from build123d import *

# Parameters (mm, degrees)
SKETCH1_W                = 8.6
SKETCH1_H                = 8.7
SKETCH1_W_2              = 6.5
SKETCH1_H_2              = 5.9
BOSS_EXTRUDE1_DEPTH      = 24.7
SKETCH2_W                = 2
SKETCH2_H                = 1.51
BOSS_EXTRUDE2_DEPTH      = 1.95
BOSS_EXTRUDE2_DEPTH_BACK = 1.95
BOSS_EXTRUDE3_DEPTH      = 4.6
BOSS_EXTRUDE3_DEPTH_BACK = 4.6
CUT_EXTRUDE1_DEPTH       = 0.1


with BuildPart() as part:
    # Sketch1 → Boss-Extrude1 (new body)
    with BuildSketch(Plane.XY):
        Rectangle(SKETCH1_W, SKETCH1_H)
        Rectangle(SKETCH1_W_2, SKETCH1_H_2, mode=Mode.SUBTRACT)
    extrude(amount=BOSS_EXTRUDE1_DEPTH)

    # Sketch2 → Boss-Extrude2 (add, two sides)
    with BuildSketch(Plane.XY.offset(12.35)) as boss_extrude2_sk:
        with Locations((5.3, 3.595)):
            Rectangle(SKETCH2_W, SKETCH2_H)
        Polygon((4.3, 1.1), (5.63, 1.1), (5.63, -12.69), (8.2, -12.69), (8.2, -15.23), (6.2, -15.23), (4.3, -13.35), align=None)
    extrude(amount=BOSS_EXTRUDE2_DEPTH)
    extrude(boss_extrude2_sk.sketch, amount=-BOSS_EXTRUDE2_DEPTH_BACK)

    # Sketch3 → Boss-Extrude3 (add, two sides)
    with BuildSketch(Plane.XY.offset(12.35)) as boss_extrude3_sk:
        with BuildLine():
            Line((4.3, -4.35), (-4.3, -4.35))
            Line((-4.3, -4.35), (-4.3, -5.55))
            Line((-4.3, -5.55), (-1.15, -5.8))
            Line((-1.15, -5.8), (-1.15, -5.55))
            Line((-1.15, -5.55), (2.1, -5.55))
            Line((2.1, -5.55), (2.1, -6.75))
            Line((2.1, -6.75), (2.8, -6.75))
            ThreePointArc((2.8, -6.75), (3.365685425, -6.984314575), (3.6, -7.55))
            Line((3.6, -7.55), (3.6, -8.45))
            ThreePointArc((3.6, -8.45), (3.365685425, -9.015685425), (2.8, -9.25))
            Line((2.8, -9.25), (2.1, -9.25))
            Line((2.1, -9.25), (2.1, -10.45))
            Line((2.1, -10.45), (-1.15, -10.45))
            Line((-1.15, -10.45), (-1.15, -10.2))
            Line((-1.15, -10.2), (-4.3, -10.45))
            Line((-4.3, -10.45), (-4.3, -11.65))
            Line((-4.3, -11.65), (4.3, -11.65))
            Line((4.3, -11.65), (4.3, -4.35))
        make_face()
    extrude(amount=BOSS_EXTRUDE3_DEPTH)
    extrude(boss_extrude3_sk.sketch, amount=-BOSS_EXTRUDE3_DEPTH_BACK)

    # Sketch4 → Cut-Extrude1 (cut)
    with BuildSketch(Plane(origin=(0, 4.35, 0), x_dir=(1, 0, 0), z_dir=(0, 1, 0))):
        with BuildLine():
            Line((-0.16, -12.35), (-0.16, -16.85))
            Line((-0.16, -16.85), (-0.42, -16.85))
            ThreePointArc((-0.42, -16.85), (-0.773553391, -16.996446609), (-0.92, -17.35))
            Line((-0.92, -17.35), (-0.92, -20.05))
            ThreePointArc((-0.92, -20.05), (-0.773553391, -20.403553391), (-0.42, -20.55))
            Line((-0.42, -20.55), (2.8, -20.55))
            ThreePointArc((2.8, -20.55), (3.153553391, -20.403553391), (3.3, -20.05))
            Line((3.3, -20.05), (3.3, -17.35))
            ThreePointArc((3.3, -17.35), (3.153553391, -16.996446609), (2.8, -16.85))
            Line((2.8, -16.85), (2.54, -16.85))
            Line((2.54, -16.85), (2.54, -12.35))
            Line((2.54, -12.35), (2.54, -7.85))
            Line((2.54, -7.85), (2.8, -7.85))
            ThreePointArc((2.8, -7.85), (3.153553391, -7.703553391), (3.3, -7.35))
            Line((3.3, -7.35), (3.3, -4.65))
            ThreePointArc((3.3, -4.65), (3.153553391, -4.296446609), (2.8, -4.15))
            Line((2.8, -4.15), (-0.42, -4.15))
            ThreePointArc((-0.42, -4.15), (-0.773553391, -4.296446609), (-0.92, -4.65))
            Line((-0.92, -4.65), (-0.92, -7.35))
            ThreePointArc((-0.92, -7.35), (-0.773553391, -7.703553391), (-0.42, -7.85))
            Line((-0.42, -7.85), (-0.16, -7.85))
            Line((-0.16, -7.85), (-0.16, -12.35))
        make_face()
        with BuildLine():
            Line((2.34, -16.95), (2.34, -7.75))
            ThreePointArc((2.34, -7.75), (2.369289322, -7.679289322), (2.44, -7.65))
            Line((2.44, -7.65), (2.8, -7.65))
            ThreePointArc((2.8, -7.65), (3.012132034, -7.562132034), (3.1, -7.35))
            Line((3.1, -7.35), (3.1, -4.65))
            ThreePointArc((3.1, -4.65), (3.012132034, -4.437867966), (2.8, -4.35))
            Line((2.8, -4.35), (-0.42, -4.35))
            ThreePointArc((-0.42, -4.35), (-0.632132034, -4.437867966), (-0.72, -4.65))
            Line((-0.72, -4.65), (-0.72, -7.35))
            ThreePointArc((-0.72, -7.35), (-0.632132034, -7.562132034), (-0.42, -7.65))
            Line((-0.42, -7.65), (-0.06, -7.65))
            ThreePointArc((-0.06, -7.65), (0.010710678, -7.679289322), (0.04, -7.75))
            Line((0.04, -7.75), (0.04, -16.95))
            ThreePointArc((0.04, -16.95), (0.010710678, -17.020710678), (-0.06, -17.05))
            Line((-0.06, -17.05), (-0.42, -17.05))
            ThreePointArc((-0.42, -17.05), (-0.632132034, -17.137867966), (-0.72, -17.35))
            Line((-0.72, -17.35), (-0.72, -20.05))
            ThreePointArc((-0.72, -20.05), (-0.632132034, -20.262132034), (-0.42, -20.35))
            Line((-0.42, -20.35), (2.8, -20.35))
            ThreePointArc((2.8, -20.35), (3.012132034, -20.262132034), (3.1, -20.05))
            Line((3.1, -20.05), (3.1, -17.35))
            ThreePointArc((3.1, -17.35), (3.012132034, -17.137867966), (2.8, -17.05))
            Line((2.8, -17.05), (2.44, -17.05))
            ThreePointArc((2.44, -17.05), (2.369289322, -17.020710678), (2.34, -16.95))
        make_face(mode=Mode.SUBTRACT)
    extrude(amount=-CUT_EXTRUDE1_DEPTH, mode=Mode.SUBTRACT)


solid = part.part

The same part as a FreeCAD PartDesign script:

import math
import FreeCAD as App
import Part
import Sketcher

V = App.Vector
Q = App.Units.Quantity

doc = App.newDocument("Part")
body = doc.addObject("PartDesign::Body", "Body")

sketch1 = doc.addObject("Sketcher::SketchObject", "Sketch")
body.addObject(sketch1)
sketch1.AttachmentSupport = (doc.XY_Plane, [""])
sketch1.MapMode = "FlatFace"
sketch1.addGeometry([
    Part.LineSegment(V(-4, 4, 0), V(-4, -4, 0)),
    Part.LineSegment(V(-4, -4, 0), V(4, -4, 0)),
    Part.LineSegment(V(4, -4, 0), V(4, 4, 0)),
    Part.LineSegment(V(4, 4, 0), V(-4, 4, 0)),
    Part.LineSegment(V(3, -3, 0), V(-3, -3, 0)),
    Part.LineSegment(V(-3, -3, 0), V(-3, 3, 0)),
    Part.LineSegment(V(-3, 3, 0), V(3, 3, 0)),
    Part.LineSegment(V(3, 3, 0), V(3, -3, 0)),
], False)
sketch1.addConstraint([
    Sketcher.Constraint("Coincident", 0, 2, 1, 1),
    Sketcher.Constraint("Coincident", 1, 2, 2, 1),
    Sketcher.Constraint("Coincident", 2, 2, 3, 1),
    Sketcher.Constraint("Coincident", 3, 2, 0, 1),
    Sketcher.Constraint("Coincident", 4, 2, 5, 1),
    Sketcher.Constraint("Coincident", 5, 2, 6, 1),
    Sketcher.Constraint("Coincident", 6, 2, 7, 1),
    Sketcher.Constraint("Coincident", 7, 2, 4, 1),
    Sketcher.Constraint("Vertical", 0),
    Sketcher.Constraint("Horizontal", 1),
    Sketcher.Constraint("Vertical", 2),
    Sketcher.Constraint("Horizontal", 3),
    Sketcher.Constraint("Horizontal", 4),
    Sketcher.Constraint("Vertical", 5),
    Sketcher.Constraint("Horizontal", 6),
    Sketcher.Constraint("Vertical", 7),
    Sketcher.Constraint("Symmetric", 0, 2, 2, 2, -1, 1),
    Sketcher.Constraint("Symmetric", 4, 2, 6, 2, -1, 1),
    Sketcher.Constraint("DistanceX", 1, 1, 1, 2, Q("8.6 mm")),
    Sketcher.Constraint("DistanceX", 4, 2, 4, 1, Q("6.5 mm")),
    Sketcher.Constraint("DistanceY", 0, 2, 0, 1, Q("8.7 mm")),
    Sketcher.Constraint("DistanceY", 5, 1, 5, 2, Q("5.9 mm")),
])
pad1 = doc.addObject("PartDesign::Pad", "Pad")
body.addObject(pad1)
pad1.Profile = sketch1
pad1.Length = 24.7

sketch2 = doc.addObject("Sketcher::SketchObject", "Sketch001")
body.addObject(sketch2)
sketch2.AttachmentSupport = (doc.XY_Plane, [""])
sketch2.MapMode = "FlatFace"
sketch2.AttachmentOffset = App.Placement(V(0, 0, 12.35), App.Rotation())
sketch2.addGeometry([
    Part.LineSegment(V(4.3, 4.3, 0), V(4.3, 2.8, 0)),
    Part.LineSegment(V(4.3, 2.8, 0), V(6.3, 2.8, 0)),
    Part.LineSegment(V(6.3, 2.8, 0), V(6.3, 4.3, 0)),
    Part.LineSegment(V(6.3, 4.3, 0), V(4.3, 4.3, 0)),
    Part.LineSegment(V(5.6, 1.1, 0), V(4.3, 1.1, 0)),
    Part.LineSegment(V(4.3, 1.1, 0), V(4.3, -13.3, 0)),
    Part.LineSegment(V(4.3, -13.3, 0), V(6.2, -15.2, 0)),
    Part.LineSegment(V(6.2, -15.2, 0), V(8.2, -15.2, 0)),
    Part.LineSegment(V(8.2, -15.2, 0), V(8.2, -12.7, 0)),
    Part.LineSegment(V(8.2, -12.7, 0), V(5.6, -12.7, 0)),
    Part.LineSegment(V(5.6, -12.7, 0), V(5.6, 1.1, 0)),
], False)
sketch2.addConstraint([
    Sketcher.Constraint("Coincident", 0, 2, 1, 1),
    Sketcher.Constraint("Coincident", 1, 2, 2, 1),
    Sketcher.Constraint("Coincident", 2, 2, 3, 1),
    Sketcher.Constraint("Coincident", 3, 2, 0, 1),
    Sketcher.Constraint("Coincident", 4, 2, 5, 1),
    Sketcher.Constraint("Coincident", 5, 2, 6, 1),
    Sketcher.Constraint("Coincident", 6, 2, 7, 1),
    Sketcher.Constraint("Coincident", 7, 2, 8, 1),
    Sketcher.Constraint("Coincident", 8, 2, 9, 1),
    Sketcher.Constraint("Coincident", 9, 2, 10, 1),
    Sketcher.Constraint("Coincident", 10, 2, 4, 1),
    Sketcher.Constraint("Vertical", 0),
    Sketcher.Constraint("Horizontal", 1),
    Sketcher.Constraint("Vertical", 2),
    Sketcher.Constraint("Horizontal", 3),
    Sketcher.Constraint("Horizontal", 4),
    Sketcher.Constraint("Vertical", 5),
    Sketcher.Constraint("Horizontal", 7),
    Sketcher.Constraint("Vertical", 8),
    Sketcher.Constraint("Horizontal", 9),
    Sketcher.Constraint("Vertical", 10),
    Sketcher.Constraint("Vertical", 3, 2, 4, 2),
    Sketcher.Constraint("Equal", 3, 7),
    Sketcher.Constraint("DistanceX", 1, 1, 1, 2, Q("2 mm")),
    Sketcher.Constraint("DistanceX", 4, 2, 4, 1, Q("1.33 mm")),
    Sketcher.Constraint("DistanceX", 9, 2, 9, 1, Q("2.57 mm")),
    Sketcher.Constraint("DistanceY", 0, 2, 0, 1, Q("1.51 mm")),
    Sketcher.Constraint("DistanceY", 5, 2, 5, 1, Q("14.45 mm")),
    Sketcher.Constraint("DistanceY", 8, 1, 8, 2, Q("2.54 mm")),
    Sketcher.Constraint("DistanceY", 10, 1, 10, 2, Q("13.79 mm")),
    Sketcher.Constraint("DistanceX", -1, 1, 0, 2, Q("4.3 mm")),
    Sketcher.Constraint("DistanceY", -1, 1, 4, 2, Q("1.1 mm")),
    Sketcher.Constraint("DistanceY", 5, 2, 3, 2, Q("17.7 mm")),
])
pad2 = doc.addObject("PartDesign::Pad", "Pad001")
body.addObject(pad2)
pad2.Profile = sketch2
pad2.Type = "TwoLengths"
pad2.Length = 1.95
pad2.Length2 = 1.95

sketch3 = doc.addObject("Sketcher::SketchObject", "Sketch002")
body.addObject(sketch3)
sketch3.AttachmentSupport = (doc.XY_Plane, [""])
sketch3.MapMode = "FlatFace"
sketch3.AttachmentOffset = App.Placement(V(0, 0, 12.35), App.Rotation())
sketch3.addGeometry([
    Part.LineSegment(V(4.3, -4.35, 0), V(-4.3, -4.35, 0)),
    Part.LineSegment(V(-4.3, -4.35, 0), V(-4.3, -5.55, 0)),
    Part.LineSegment(V(-4.3, -5.55, 0), V(-1.15, -5.8, 0)),
    Part.LineSegment(V(-1.15, -5.8, 0), V(-1.15, -5.55, 0)),
    Part.LineSegment(V(-1.15, -5.55, 0), V(2.1, -5.55, 0)),
    Part.LineSegment(V(2.1, -5.55, 0), V(2.1, -6.75, 0)),
    Part.LineSegment(V(2.1, -6.75, 0), V(2.8, -6.75, 0)),
    Part.ArcOfCircle(Part.Circle(V(2.8, -7.55, 0), V(0, 0, 1), 0.8), math.radians(0), math.radians(90)),
    Part.LineSegment(V(3.6, -7.55, 0), V(3.6, -8.45, 0)),
    Part.ArcOfCircle(Part.Circle(V(2.8, -8.45, 0), V(0, 0, 1), 0.8), math.radians(-90), math.radians(0)),
    Part.LineSegment(V(2.8, -9.25, 0), V(2.1, -9.25, 0)),
    Part.LineSegment(V(2.1, -9.25, 0), V(2.1, -10.45, 0)),
    Part.LineSegment(V(2.1, -10.45, 0), V(-1.15, -10.45, 0)),
    Part.LineSegment(V(-1.15, -10.45, 0), V(-1.15, -10.2, 0)),
    Part.LineSegment(V(-1.15, -10.2, 0), V(-4.3, -10.45, 0)),
    Part.LineSegment(V(-4.3, -10.45, 0), V(-4.3, -11.65, 0)),
    Part.LineSegment(V(-4.3, -11.65, 0), V(4.3, -11.65, 0)),
    Part.LineSegment(V(4.3, -11.65, 0), V(4.3, -4.35, 0)),
], False)
sketch3.addConstraint([
    Sketcher.Constraint("Coincident", 0, 2, 1, 1),
    Sketcher.Constraint("Coincident", 1, 2, 2, 1),
    Sketcher.Constraint("Coincident", 2, 2, 3, 1),
    Sketcher.Constraint("Coincident", 3, 2, 4, 1),
    Sketcher.Constraint("Coincident", 4, 2, 5, 1),
    Sketcher.Constraint("Coincident", 5, 2, 6, 1),
    Sketcher.Constraint("Tangent", 6, 2, 7, 2),
    Sketcher.Constraint("Tangent", 7, 1, 8, 1),
    Sketcher.Constraint("Tangent", 8, 2, 9, 2),
    Sketcher.Constraint("Tangent", 9, 1, 10, 1),
    Sketcher.Constraint("Coincident", 10, 2, 11, 1),
    Sketcher.Constraint("Coincident", 11, 2, 12, 1),
    Sketcher.Constraint("Coincident", 12, 2, 13, 1),
    Sketcher.Constraint("Coincident", 13, 2, 14, 1),
    Sketcher.Constraint("Coincident", 14, 2, 15, 1),
    Sketcher.Constraint("Coincident", 15, 2, 16, 1),
    Sketcher.Constraint("Coincident", 16, 2, 17, 1),
    Sketcher.Constraint("Coincident", 17, 2, 0, 1),
    Sketcher.Constraint("Horizontal", 0),
    Sketcher.Constraint("Vertical", 1),
    Sketcher.Constraint("Vertical", 3),
    Sketcher.Constraint("Horizontal", 4),
    Sketcher.Constraint("Vertical", 5),
    Sketcher.Constraint("Horizontal", 6),
    Sketcher.Constraint("Vertical", 8),
    Sketcher.Constraint("Horizontal", 10),
    Sketcher.Constraint("Vertical", 11),
    Sketcher.Constraint("Horizontal", 12),
    Sketcher.Constraint("Vertical", 13),
    Sketcher.Constraint("Vertical", 15),
    Sketcher.Constraint("Horizontal", 16),
    Sketcher.Constraint("Vertical", 17),
    Sketcher.Constraint("Equal", 7, 9),
    Sketcher.Constraint("Horizontal", 1, 2, 3, 2),
    Sketcher.Constraint("Horizontal", 12, 2, 14, 2),
    Sketcher.Constraint("Vertical", 5, 2, 10, 2),
    Sketcher.Constraint("Vertical", 3, 2, 12, 2),
    Sketcher.Constraint("Vertical", 1, 2, 14, 2),
    Sketcher.Constraint("Equal", 1, 5),
    Sketcher.Constraint("Equal", 5, 11),
    Sketcher.Constraint("Equal", 3, 13),
    Sketcher.Constraint("Equal", 11, 15),
    Sketcher.Constraint("Radius", 7, Q("0.8 mm")),
    Sketcher.Constraint("DistanceX", 0, 2, 0, 1, Q("8.6 mm")),
    Sketcher.Constraint("DistanceX", 6, 1, 6, 2, Q("0.7 mm")),
    Sketcher.Constraint("DistanceY", 1, 2, 1, 1, Q("1.2 mm")),
    Sketcher.Constraint("DistanceY", 8, 2, 8, 1, Q("0.9 mm")),
    Sketcher.Constraint("DistanceX", 4, 1, 4, 2, Q("3.25 mm")),
    Sketcher.Constraint("DistanceY", 3, 1, 3, 2, Q("0.25 mm")),
    Sketcher.Constraint("DistanceX", -1, 1, 7, 3, Q("2.8 mm")),
    Sketcher.Constraint("DistanceX", 0, 2, -1, 1, Q("4.3 mm")),
    Sketcher.Constraint("DistanceY", 2, 2, -1, 1, Q("5.8 mm")),
])
pad3 = doc.addObject("PartDesign::Pad", "Pad002")
body.addObject(pad3)
pad3.Profile = sketch3
pad3.Type = "TwoLengths"
pad3.Length = 4.6
pad3.Length2 = 4.6

sketch4 = doc.addObject("Sketcher::SketchObject", "Sketch003")
body.addObject(sketch4)
sketch4.AttachmentSupport = (doc.XZ_Plane, [""])
sketch4.MapMode = "FlatFace"
sketch4.AttachmentOffset = App.Placement(V(0, 0, -4.35), App.Rotation())
sketch4.addGeometry([
    Part.LineSegment(V(-0.16, 16.85, 0), V(-0.42, 16.85, 0)),
    Part.ArcOfCircle(Part.Circle(V(-0.42, 17.35, 0), V(0, 0, 1), 0.5), math.radians(180), math.radians(270)),
    Part.LineSegment(V(-0.92, 17.35, 0), V(-0.92, 20.05, 0)),
    Part.ArcOfCircle(Part.Circle(V(-0.42, 20.05, 0), V(0, 0, 1), 0.5), math.radians(90), math.radians(180)),
    Part.LineSegment(V(-0.42, 20.55, 0), V(2.8, 20.55, 0)),
    Part.ArcOfCircle(Part.Circle(V(2.8, 20.05, 0), V(0, 0, 1), 0.5), math.radians(0), math.radians(90)),
    Part.LineSegment(V(3.3, 20.05, 0), V(3.3, 17.35, 0)),
    Part.ArcOfCircle(Part.Circle(V(2.8, 17.35, 0), V(0, 0, 1), 0.5), math.radians(-90), math.radians(0)),
    Part.LineSegment(V(2.8, 16.85, 0), V(2.54, 16.85, 0)),
    Part.LineSegment(V(2.54, 16.85, 0), V(2.54, 7.85, 0)),
    Part.LineSegment(V(2.54, 7.85, 0), V(2.8, 7.85, 0)),
    Part.ArcOfCircle(Part.Circle(V(2.8, 7.35, 0), V(0, 0, 1), 0.5), math.radians(0), math.radians(90)),
    Part.LineSegment(V(3.3, 7.35, 0), V(3.3, 4.65, 0)),
    Part.ArcOfCircle(Part.Circle(V(2.8, 4.65, 0), V(0, 0, 1), 0.5), math.radians(-90), math.radians(0)),
    Part.LineSegment(V(2.8, 4.15, 0), V(-0.42, 4.15, 0)),
    Part.ArcOfCircle(Part.Circle(V(-0.42, 4.65, 0), V(0, 0, 1), 0.5), math.radians(180), math.radians(270)),
    Part.LineSegment(V(-0.92, 4.65, 0), V(-0.92, 7.35, 0)),
    Part.ArcOfCircle(Part.Circle(V(-0.42, 7.35, 0), V(0, 0, 1), 0.5), math.radians(90), math.radians(180)),
    Part.LineSegment(V(-0.42, 7.85, 0), V(-0.16, 7.85, 0)),
    Part.LineSegment(V(-0.16, 7.85, 0), V(-0.16, 16.85, 0)),
    Part.LineSegment(V(2.34, 7.75, 0), V(2.34, 16.95, 0)),
    Part.ArcOfCircle(Part.Circle(V(2.44, 16.95, 0), V(0, 0, 1), 0.1), math.radians(90), math.radians(180)),
    Part.LineSegment(V(2.44, 17.05, 0), V(2.8, 17.05, 0)),
    Part.ArcOfCircle(Part.Circle(V(2.8, 17.35, 0), V(0, 0, 1), 0.3), math.radians(-90), math.radians(0)),
    Part.LineSegment(V(3.1, 17.35, 0), V(3.1, 20.05, 0)),
    Part.ArcOfCircle(Part.Circle(V(2.8, 20.05, 0), V(0, 0, 1), 0.3), math.radians(0), math.radians(90)),
    Part.LineSegment(V(2.8, 20.35, 0), V(-0.42, 20.35, 0)),
    Part.ArcOfCircle(Part.Circle(V(-0.42, 20.05, 0), V(0, 0, 1), 0.3), math.radians(90), math.radians(180)),
    Part.LineSegment(V(-0.72, 20.05, 0), V(-0.72, 17.35, 0)),
    Part.ArcOfCircle(Part.Circle(V(-0.42, 17.35, 0), V(0, 0, 1), 0.3), math.radians(-180), math.radians(-90)),
    Part.LineSegment(V(-0.42, 17.05, 0), V(-0.06, 17.05, 0)),
    Part.ArcOfCircle(Part.Circle(V(-0.06, 16.95, 0), V(0, 0, 1), 0.1), math.radians(0), math.radians(90)),
    Part.LineSegment(V(0.04, 16.95, 0), V(0.04, 7.75, 0)),
    Part.ArcOfCircle(Part.Circle(V(-0.06, 7.75, 0), V(0, 0, 1), 0.1), math.radians(-90), math.radians(0)),
    Part.LineSegment(V(-0.06, 7.65, 0), V(-0.42, 7.65, 0)),
    Part.ArcOfCircle(Part.Circle(V(-0.42, 7.35, 0), V(0, 0, 1), 0.3), math.radians(90), math.radians(180)),
    Part.LineSegment(V(-0.72, 7.35, 0), V(-0.72, 4.65, 0)),
    Part.ArcOfCircle(Part.Circle(V(-0.42, 4.65, 0), V(0, 0, 1), 0.3), math.radians(-180), math.radians(-90)),
    Part.LineSegment(V(-0.42, 4.35, 0), V(2.8, 4.35, 0)),
    Part.ArcOfCircle(Part.Circle(V(2.8, 4.65, 0), V(0, 0, 1), 0.3), math.radians(-90), math.radians(0)),
    Part.LineSegment(V(3.1, 4.65, 0), V(3.1, 7.35, 0)),
    Part.ArcOfCircle(Part.Circle(V(2.8, 7.35, 0), V(0, 0, 1), 0.3), math.radians(0), math.radians(90)),
    Part.LineSegment(V(2.8, 7.65, 0), V(2.44, 7.65, 0)),
    Part.ArcOfCircle(Part.Circle(V(2.44, 7.75, 0), V(0, 0, 1), 0.1), math.radians(180), math.radians(270)),
], False)
sketch4.addConstraint([
    Sketcher.Constraint("Tangent", 0, 2, 1, 2),
    Sketcher.Constraint("Tangent", 1, 1, 2, 1),
    Sketcher.Constraint("Tangent", 2, 2, 3, 2),
    Sketcher.Constraint("Tangent", 3, 1, 4, 1),
    Sketcher.Constraint("Tangent", 4, 2, 5, 2),
    Sketcher.Constraint("Tangent", 5, 1, 6, 1),
    Sketcher.Constraint("Tangent", 6, 2, 7, 2),
    Sketcher.Constraint("Tangent", 7, 1, 8, 1),
    Sketcher.Constraint("Coincident", 8, 2, 9, 1),
    Sketcher.Constraint("Coincident", 9, 2, 10, 1),
    Sketcher.Constraint("Tangent", 10, 2, 11, 2),
    Sketcher.Constraint("Tangent", 11, 1, 12, 1),
    Sketcher.Constraint("Tangent", 12, 2, 13, 2),
    Sketcher.Constraint("Tangent", 13, 1, 14, 1),
    Sketcher.Constraint("Tangent", 14, 2, 15, 2),
    Sketcher.Constraint("Tangent", 15, 1, 16, 1),
    Sketcher.Constraint("Tangent", 16, 2, 17, 2),
    Sketcher.Constraint("Tangent", 17, 1, 18, 1),
    Sketcher.Constraint("Coincident", 18, 2, 19, 1),
    Sketcher.Constraint("Coincident", 19, 2, 0, 1),
    Sketcher.Constraint("Tangent", 20, 2, 21, 2),
    Sketcher.Constraint("Tangent", 21, 1, 22, 1),
    Sketcher.Constraint("Tangent", 22, 2, 23, 1),
    Sketcher.Constraint("Tangent", 23, 2, 24, 1),
    Sketcher.Constraint("Tangent", 24, 2, 25, 1),
    Sketcher.Constraint("Tangent", 25, 2, 26, 1),
    Sketcher.Constraint("Tangent", 26, 2, 27, 1),
    Sketcher.Constraint("Tangent", 27, 2, 28, 1),
    Sketcher.Constraint("Tangent", 28, 2, 29, 1),
    Sketcher.Constraint("Tangent", 29, 2, 30, 1),
    Sketcher.Constraint("Tangent", 30, 2, 31, 2),
    Sketcher.Constraint("Tangent", 31, 1, 32, 1),
    Sketcher.Constraint("Tangent", 32, 2, 33, 2),
    Sketcher.Constraint("Tangent", 33, 1, 34, 1),
    Sketcher.Constraint("Tangent", 34, 2, 35, 1),
    Sketcher.Constraint("Tangent", 35, 2, 36, 1),
    Sketcher.Constraint("Tangent", 36, 2, 37, 1),
    Sketcher.Constraint("Tangent", 37, 2, 38, 1),
    Sketcher.Constraint("Tangent", 38, 2, 39, 1),
    Sketcher.Constraint("Tangent", 39, 2, 40, 1),
    Sketcher.Constraint("Tangent", 40, 2, 41, 1),
    Sketcher.Constraint("Tangent", 41, 2, 42, 1),
    Sketcher.Constraint("Tangent", 42, 2, 43, 2),
    Sketcher.Constraint("Tangent", 43, 1, 20, 1),
    Sketcher.Constraint("Horizontal", 0),
    Sketcher.Constraint("Vertical", 2),
    Sketcher.Constraint("Horizontal", 4),
    Sketcher.Constraint("Vertical", 6),
    Sketcher.Constraint("Horizontal", 8),
    Sketcher.Constraint("Vertical", 9),
    Sketcher.Constraint("Horizontal", 10),
    Sketcher.Constraint("Vertical", 12),
    Sketcher.Constraint("Horizontal", 14),
    Sketcher.Constraint("Vertical", 16),
    Sketcher.Constraint("Horizontal", 18),
    Sketcher.Constraint("Vertical", 19),
    Sketcher.Constraint("Vertical", 20),
    Sketcher.Constraint("Horizontal", 22),
    Sketcher.Constraint("Vertical", 24),
    Sketcher.Constraint("Horizontal", 26),
    Sketcher.Constraint("Vertical", 28),
    Sketcher.Constraint("Horizontal", 30),
    Sketcher.Constraint("Vertical", 32),
    Sketcher.Constraint("Horizontal", 34),
    Sketcher.Constraint("Vertical", 36),
    Sketcher.Constraint("Horizontal", 38),
    Sketcher.Constraint("Vertical", 40),
    Sketcher.Constraint("Horizontal", 42),
    Sketcher.Constraint("Coincident", 23, 3, 7, 3),
    Sketcher.Constraint("Coincident", 25, 3, 5, 3),
    Sketcher.Constraint("Coincident", 27, 3, 3, 3),
    Sketcher.Constraint("Coincident", 29, 3, 1, 3),
    Sketcher.Constraint("Coincident", 35, 3, 17, 3),
    Sketcher.Constraint("Coincident", 37, 3, 15, 3),
    Sketcher.Constraint("Coincident", 39, 3, 13, 3),
    Sketcher.Constraint("Coincident", 41, 3, 11, 3),
    Sketcher.Constraint("Equal", 1, 3),
    Sketcher.Constraint("Equal", 3, 5),
    Sketcher.Constraint("Equal", 5, 7),
    Sketcher.Constraint("Equal", 7, 11),
    Sketcher.Constraint("Equal", 11, 13),
    Sketcher.Constraint("Equal", 13, 15),
    Sketcher.Constraint("Equal", 15, 17),
    Sketcher.Constraint("Equal", 21, 31),
    Sketcher.Constraint("Equal", 31, 33),
    Sketcher.Constraint("Equal", 29, 35),
    Sketcher.Constraint("Equal", 33, 43),
    Sketcher.Constraint("Horizontal", 1, 3, 7, 3),
    Sketcher.Constraint("Horizontal", 11, 3, 17, 3),
    Sketcher.Constraint("Vertical", 7, 3, 11, 3),
    Sketcher.Constraint("Vertical", 3, 3, 15, 3),
    Sketcher.Constraint("Equal", 0, 8),
    Sketcher.Constraint("Equal", 22, 30),
    Sketcher.Constraint("Equal", 6, 12),
    Sketcher.Constraint("Radius", 1, Q("0.5 mm")),
    Sketcher.Constraint("Radius", 21, Q("0.1 mm")),
    Sketcher.Constraint("Radius", 23, Q("0.3 mm")),
    Sketcher.Constraint("DistanceY", 9, 2, 9, 1, Q("9 mm")),
    Sketcher.Constraint("DistanceY", 2, 1, 2, 2, Q("2.7 mm")),
    Sketcher.Constraint("DistanceX", 0, 2, 0, 1, Q("0.26 mm")),
    Sketcher.Constraint("DistanceX", 4, 1, 4, 2, Q("3.22 mm")),
    Sketcher.Constraint("DistanceX", 22, 1, 22, 2, Q("0.36 mm")),
    Sketcher.Constraint("DistanceX", -1, 1, 5, 3, Q("2.8 mm")),
    Sketcher.Constraint("DistanceY", -1, 1, 1, 3, Q("17.35 mm")),
])
pocket1 = doc.addObject("PartDesign::Pocket", "Pocket")
body.addObject(pocket1)
pocket1.Profile = sketch4
pocket1.Length = 0.1
pocket1.Reversed = True

doc.recompute()
